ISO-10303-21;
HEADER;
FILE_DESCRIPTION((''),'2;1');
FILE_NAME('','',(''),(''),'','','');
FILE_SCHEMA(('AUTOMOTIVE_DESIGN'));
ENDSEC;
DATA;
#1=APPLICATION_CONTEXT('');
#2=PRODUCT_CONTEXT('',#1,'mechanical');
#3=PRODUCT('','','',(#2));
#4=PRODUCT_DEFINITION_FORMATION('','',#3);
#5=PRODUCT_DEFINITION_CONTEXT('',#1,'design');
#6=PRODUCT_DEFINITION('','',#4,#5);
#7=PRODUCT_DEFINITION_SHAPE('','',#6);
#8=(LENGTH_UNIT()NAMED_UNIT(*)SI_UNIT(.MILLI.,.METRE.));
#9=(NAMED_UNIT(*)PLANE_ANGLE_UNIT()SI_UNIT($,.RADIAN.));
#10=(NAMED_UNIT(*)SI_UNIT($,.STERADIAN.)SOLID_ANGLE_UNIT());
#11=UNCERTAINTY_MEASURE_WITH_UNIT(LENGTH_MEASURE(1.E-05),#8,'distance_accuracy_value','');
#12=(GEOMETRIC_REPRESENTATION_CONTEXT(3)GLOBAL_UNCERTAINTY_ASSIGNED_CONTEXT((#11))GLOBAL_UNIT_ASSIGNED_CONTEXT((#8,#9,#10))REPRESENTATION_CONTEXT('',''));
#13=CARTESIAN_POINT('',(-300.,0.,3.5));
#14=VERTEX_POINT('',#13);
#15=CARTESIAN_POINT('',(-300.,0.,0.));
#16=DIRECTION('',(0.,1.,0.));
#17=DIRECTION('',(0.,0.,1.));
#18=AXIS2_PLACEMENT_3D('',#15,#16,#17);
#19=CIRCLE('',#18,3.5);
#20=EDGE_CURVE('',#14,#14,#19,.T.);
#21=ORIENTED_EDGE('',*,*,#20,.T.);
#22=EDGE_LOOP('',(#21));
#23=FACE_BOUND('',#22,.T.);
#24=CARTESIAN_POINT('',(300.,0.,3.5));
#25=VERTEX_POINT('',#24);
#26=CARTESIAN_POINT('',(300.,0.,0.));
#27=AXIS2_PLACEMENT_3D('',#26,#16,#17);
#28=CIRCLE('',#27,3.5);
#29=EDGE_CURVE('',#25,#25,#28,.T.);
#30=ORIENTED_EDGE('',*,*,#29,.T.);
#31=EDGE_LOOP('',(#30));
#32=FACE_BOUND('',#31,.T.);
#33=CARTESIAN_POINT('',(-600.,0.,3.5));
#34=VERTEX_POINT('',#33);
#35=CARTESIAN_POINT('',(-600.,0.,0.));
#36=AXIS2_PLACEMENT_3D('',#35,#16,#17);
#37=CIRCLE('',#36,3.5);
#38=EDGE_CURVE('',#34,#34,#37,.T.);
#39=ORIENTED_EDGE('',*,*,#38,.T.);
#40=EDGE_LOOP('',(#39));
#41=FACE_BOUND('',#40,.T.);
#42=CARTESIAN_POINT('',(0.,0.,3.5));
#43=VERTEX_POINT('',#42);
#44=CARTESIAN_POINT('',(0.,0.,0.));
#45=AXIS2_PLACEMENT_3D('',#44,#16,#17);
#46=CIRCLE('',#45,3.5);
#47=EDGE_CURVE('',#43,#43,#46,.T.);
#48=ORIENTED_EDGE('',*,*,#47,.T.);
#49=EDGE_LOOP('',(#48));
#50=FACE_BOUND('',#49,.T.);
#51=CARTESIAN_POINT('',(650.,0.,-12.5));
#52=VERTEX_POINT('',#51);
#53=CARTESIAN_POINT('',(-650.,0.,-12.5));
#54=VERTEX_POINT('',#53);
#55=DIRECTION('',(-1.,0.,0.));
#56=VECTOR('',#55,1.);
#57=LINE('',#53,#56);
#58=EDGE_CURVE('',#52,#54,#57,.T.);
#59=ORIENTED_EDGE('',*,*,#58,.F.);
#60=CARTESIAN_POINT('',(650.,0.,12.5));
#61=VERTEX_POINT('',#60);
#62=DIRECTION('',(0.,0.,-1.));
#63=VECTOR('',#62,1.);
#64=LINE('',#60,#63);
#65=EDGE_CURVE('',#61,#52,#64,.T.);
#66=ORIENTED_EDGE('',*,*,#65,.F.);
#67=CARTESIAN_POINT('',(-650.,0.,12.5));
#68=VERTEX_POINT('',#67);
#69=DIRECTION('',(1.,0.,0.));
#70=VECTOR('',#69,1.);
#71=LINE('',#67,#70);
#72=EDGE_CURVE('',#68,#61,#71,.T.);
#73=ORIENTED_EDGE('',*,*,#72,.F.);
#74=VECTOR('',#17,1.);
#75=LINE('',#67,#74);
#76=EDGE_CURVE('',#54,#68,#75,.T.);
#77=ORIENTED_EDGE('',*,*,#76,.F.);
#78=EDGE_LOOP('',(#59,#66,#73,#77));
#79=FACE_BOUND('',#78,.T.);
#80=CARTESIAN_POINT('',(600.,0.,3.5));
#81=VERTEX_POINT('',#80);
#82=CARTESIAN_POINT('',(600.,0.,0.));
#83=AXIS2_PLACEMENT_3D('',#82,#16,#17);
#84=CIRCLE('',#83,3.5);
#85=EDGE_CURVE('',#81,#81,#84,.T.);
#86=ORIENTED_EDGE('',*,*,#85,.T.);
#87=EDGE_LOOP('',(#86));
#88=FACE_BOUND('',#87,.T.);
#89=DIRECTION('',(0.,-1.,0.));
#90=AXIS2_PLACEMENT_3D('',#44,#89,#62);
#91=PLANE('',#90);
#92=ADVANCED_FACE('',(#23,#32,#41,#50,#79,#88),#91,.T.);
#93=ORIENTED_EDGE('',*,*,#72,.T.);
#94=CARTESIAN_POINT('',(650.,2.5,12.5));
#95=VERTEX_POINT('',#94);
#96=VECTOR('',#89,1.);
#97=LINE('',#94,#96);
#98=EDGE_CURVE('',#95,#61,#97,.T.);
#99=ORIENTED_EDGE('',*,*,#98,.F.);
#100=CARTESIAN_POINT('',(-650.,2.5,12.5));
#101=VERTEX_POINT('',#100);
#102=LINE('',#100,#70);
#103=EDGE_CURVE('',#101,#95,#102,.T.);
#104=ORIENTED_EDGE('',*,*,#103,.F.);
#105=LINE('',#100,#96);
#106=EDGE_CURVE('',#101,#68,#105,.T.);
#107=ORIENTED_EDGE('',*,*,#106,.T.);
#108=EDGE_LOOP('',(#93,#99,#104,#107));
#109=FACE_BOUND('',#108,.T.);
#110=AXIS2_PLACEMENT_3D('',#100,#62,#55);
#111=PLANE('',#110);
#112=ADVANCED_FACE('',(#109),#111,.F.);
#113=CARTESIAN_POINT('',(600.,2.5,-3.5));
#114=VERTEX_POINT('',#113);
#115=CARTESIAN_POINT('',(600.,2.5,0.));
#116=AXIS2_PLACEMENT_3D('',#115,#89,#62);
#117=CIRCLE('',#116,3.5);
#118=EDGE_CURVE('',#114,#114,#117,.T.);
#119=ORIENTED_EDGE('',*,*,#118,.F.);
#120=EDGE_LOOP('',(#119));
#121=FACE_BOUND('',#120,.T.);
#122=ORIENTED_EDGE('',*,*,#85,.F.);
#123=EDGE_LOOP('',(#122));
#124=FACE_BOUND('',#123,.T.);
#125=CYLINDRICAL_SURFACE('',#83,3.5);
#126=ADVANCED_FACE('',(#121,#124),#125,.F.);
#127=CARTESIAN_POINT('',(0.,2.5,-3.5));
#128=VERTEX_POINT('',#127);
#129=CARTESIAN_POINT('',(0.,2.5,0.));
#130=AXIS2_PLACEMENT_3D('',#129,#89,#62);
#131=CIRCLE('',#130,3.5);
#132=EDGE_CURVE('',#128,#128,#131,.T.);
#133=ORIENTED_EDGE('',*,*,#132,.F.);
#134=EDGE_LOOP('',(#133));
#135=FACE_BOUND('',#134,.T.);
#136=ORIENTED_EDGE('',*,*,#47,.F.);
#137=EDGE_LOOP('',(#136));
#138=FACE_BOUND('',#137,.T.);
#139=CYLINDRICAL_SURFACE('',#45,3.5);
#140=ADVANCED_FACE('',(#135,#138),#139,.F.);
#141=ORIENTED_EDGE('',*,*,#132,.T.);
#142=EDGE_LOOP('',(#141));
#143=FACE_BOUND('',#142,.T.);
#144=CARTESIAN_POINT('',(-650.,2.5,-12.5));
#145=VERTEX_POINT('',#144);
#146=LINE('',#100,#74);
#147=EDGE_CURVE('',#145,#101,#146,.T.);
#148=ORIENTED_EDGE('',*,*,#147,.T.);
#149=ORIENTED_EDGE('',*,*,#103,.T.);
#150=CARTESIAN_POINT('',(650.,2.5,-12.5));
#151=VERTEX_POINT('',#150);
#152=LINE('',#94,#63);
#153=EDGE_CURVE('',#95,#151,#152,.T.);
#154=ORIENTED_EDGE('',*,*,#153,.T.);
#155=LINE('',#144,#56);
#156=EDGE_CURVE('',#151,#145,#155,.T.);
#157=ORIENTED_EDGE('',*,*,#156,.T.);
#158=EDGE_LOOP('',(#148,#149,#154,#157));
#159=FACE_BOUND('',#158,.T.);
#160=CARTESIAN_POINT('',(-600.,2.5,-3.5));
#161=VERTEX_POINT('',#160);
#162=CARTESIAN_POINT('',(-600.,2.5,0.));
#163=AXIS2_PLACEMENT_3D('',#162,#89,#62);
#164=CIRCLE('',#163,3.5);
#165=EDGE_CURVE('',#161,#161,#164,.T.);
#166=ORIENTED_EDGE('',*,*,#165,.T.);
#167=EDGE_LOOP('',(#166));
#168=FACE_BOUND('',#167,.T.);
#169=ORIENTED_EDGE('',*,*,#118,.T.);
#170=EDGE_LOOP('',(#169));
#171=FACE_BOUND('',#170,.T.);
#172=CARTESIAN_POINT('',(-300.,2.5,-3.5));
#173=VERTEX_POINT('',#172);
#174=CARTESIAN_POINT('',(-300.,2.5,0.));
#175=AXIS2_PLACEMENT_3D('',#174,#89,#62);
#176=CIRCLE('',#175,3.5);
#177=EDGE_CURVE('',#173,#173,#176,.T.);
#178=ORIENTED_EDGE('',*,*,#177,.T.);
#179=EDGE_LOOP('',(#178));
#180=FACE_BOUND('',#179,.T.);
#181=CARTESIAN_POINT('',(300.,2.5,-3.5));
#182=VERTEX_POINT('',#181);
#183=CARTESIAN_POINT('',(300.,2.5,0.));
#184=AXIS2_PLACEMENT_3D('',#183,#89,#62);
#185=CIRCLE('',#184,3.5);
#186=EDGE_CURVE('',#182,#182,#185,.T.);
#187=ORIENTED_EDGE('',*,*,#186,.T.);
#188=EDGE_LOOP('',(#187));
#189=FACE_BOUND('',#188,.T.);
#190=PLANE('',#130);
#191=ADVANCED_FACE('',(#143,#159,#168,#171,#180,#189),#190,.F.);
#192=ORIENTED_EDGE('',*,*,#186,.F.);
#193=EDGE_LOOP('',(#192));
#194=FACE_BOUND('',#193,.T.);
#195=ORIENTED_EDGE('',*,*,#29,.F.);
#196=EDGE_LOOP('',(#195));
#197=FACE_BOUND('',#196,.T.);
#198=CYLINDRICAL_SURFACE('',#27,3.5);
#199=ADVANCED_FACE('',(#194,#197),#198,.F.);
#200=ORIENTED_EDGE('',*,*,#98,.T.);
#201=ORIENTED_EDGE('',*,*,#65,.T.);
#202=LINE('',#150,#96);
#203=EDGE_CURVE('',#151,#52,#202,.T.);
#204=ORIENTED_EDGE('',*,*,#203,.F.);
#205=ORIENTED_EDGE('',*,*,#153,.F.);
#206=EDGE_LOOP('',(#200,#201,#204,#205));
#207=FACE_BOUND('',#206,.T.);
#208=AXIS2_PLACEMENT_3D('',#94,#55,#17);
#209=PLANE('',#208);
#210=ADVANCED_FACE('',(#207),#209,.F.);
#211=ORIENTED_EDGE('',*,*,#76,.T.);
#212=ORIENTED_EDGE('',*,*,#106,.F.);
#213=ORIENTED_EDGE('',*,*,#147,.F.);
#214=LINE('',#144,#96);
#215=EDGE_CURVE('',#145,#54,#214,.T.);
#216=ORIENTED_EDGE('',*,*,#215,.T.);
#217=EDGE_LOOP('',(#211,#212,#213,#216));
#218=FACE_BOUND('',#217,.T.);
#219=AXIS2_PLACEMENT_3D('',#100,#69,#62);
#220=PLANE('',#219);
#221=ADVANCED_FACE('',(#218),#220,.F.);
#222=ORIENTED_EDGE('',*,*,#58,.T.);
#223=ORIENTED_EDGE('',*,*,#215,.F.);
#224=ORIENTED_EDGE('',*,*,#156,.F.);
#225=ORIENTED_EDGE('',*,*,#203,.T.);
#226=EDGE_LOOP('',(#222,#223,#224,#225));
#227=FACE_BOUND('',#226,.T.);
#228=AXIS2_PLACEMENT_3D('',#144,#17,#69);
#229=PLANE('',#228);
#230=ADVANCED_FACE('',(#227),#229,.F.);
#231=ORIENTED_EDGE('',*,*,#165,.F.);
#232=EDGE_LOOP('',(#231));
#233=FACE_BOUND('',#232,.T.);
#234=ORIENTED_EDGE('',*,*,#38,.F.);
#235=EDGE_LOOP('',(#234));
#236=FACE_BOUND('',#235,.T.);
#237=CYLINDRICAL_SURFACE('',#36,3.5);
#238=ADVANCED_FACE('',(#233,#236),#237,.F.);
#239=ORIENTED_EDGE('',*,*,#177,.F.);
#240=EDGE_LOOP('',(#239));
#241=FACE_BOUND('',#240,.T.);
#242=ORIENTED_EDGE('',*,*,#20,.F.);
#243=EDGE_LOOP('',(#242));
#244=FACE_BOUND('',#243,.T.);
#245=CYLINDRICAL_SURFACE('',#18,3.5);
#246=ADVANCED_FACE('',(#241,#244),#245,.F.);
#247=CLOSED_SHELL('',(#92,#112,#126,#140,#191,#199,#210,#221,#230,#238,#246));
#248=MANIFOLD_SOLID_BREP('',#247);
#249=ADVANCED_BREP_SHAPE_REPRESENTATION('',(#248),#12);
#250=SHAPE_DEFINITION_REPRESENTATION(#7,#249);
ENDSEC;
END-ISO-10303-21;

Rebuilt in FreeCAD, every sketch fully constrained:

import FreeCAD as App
import Part
import Sketcher

V = App.Vector
Q = App.Units.Quantity

doc = App.newDocument("Part")
params = doc.addObject("Spreadsheet::Sheet", "Params")
for row, (alias, value) in enumerate([
    ("sketch1_width", "1300 mm"),
    ("sketch1_height", "25 mm"),
    ("pad1_length", "2.5 mm"),
    ("sketch2_diameter", "7 mm"),
    ("pocket1_length", "1302.249976 mm"),
    ("linearpattern_pitch", "300 mm"),
], start=1):
    params.set(f"A{row}", alias)
    params.set(f"B{row}", "=" + value)
    params.setAlias(f"B{row}", alias)

body = doc.addObject("PartDesign::Body", "Body")

sketch1 = doc.addObject("Sketcher::SketchObject", "Sketch")
body.addObject(sketch1)
sketch1.AttachmentSupport = (doc.XZ_Plane, [""])
sketch1.MapMode = "FlatFace"
sketch1.addGeometry(Part.LineSegment(V(-650, -12, 0), V(-650, 12, 0)), False)
sketch1.addGeometry(Part.LineSegment(V(-650, 12, 0), V(650, 12, 0)), False)
sketch1.addGeometry(Part.LineSegment(V(650, 12, 0), V(650, -12, 0)), False)
sketch1.addGeometry(Part.LineSegment(V(650, -12, 0), V(-650, -12, 0)), False)
sketch1.addConstraint(Sketcher.Constraint("Coincident", 0, 2, 1, 1))
sketch1.addConstraint(Sketcher.Constraint("Coincident", 1, 2, 2, 1))
sketch1.addConstraint(Sketcher.Constraint("Coincident", 2, 2, 3, 1))
sketch1.addConstraint(Sketcher.Constraint("Coincident", 3, 2, 0, 1))
sketch1.addConstraint(Sketcher.Constraint("Vertical", 0))
sketch1.addConstraint(Sketcher.Constraint("Horizontal", 1))
sketch1.addConstraint(Sketcher.Constraint("Vertical", 2))
sketch1.addConstraint(Sketcher.Constraint("Horizontal", 3))
sketch1.addConstraint(Sketcher.Constraint("Symmetric", 0, 2, 2, 2, -1, 1))
sketch1.addConstraint(Sketcher.Constraint("DistanceX", 1, 1, 1, 2, Q("1300 mm")))
sketch1.addConstraint(Sketcher.Constraint("DistanceY", 0, 1, 0, 2, Q("25 mm")))
sketch1.setExpression("Constraints[9]", "Params.sketch1_width")
sketch1.setExpression("Constraints[10]", "Params.sketch1_height")
pad1 = doc.addObject("PartDesign::Pad", "Pad")
body.addObject(pad1)
pad1.Profile = sketch1
pad1.setExpression("Length", "Params.pad1_length")
pad1.Reversed = True

sketch2 = doc.addObject("Sketcher::SketchObject", "Sketch001")
body.addObject(sketch2)
sketch2.AttachmentSupport = (doc.XZ_Plane, [""])
sketch2.MapMode = "FlatFace"
sketch2.AttachmentOffset = App.Placement(V(0, 0, -2.5), App.Rotation())
sketch2.addGeometry(Part.Circle(V(-600, 0, 0), V(0, 0, 1), 3.5), False)
sketch2.addConstraint(Sketcher.Constraint("PointOnObject", 0, 3, -1))
sketch2.addConstraint(Sketcher.Constraint("Diameter", 0, Q("7 mm")))
sketch2.addConstraint(Sketcher.Constraint("DistanceX", 0, 3, -1, 1, Q("600 mm")))
sketch2.setExpression("Constraints[1]", "Params.sketch2_diameter")
pocket1 = doc.addObject("PartDesign::Pocket", "Pocket")
body.addObject(pocket1)
pocket1.Profile = sketch2
pocket1.setExpression("Length", "Params.pocket1_length")
pocket1.Midplane = True
doc.recompute()

linearpattern = doc.addObject("PartDesign::LinearPattern", "LinearPattern")
body.addObject(linearpattern)
linearpattern.Originals = [pocket1]
linearpattern.Direction = (doc.X_Axis, [""])
linearpattern.Mode = "offset"
linearpattern.setExpression("Offset", "Params.linearpattern_pitch")
linearpattern.Occurrences = 5
body.Tip = linearpattern

doc.recompute()
